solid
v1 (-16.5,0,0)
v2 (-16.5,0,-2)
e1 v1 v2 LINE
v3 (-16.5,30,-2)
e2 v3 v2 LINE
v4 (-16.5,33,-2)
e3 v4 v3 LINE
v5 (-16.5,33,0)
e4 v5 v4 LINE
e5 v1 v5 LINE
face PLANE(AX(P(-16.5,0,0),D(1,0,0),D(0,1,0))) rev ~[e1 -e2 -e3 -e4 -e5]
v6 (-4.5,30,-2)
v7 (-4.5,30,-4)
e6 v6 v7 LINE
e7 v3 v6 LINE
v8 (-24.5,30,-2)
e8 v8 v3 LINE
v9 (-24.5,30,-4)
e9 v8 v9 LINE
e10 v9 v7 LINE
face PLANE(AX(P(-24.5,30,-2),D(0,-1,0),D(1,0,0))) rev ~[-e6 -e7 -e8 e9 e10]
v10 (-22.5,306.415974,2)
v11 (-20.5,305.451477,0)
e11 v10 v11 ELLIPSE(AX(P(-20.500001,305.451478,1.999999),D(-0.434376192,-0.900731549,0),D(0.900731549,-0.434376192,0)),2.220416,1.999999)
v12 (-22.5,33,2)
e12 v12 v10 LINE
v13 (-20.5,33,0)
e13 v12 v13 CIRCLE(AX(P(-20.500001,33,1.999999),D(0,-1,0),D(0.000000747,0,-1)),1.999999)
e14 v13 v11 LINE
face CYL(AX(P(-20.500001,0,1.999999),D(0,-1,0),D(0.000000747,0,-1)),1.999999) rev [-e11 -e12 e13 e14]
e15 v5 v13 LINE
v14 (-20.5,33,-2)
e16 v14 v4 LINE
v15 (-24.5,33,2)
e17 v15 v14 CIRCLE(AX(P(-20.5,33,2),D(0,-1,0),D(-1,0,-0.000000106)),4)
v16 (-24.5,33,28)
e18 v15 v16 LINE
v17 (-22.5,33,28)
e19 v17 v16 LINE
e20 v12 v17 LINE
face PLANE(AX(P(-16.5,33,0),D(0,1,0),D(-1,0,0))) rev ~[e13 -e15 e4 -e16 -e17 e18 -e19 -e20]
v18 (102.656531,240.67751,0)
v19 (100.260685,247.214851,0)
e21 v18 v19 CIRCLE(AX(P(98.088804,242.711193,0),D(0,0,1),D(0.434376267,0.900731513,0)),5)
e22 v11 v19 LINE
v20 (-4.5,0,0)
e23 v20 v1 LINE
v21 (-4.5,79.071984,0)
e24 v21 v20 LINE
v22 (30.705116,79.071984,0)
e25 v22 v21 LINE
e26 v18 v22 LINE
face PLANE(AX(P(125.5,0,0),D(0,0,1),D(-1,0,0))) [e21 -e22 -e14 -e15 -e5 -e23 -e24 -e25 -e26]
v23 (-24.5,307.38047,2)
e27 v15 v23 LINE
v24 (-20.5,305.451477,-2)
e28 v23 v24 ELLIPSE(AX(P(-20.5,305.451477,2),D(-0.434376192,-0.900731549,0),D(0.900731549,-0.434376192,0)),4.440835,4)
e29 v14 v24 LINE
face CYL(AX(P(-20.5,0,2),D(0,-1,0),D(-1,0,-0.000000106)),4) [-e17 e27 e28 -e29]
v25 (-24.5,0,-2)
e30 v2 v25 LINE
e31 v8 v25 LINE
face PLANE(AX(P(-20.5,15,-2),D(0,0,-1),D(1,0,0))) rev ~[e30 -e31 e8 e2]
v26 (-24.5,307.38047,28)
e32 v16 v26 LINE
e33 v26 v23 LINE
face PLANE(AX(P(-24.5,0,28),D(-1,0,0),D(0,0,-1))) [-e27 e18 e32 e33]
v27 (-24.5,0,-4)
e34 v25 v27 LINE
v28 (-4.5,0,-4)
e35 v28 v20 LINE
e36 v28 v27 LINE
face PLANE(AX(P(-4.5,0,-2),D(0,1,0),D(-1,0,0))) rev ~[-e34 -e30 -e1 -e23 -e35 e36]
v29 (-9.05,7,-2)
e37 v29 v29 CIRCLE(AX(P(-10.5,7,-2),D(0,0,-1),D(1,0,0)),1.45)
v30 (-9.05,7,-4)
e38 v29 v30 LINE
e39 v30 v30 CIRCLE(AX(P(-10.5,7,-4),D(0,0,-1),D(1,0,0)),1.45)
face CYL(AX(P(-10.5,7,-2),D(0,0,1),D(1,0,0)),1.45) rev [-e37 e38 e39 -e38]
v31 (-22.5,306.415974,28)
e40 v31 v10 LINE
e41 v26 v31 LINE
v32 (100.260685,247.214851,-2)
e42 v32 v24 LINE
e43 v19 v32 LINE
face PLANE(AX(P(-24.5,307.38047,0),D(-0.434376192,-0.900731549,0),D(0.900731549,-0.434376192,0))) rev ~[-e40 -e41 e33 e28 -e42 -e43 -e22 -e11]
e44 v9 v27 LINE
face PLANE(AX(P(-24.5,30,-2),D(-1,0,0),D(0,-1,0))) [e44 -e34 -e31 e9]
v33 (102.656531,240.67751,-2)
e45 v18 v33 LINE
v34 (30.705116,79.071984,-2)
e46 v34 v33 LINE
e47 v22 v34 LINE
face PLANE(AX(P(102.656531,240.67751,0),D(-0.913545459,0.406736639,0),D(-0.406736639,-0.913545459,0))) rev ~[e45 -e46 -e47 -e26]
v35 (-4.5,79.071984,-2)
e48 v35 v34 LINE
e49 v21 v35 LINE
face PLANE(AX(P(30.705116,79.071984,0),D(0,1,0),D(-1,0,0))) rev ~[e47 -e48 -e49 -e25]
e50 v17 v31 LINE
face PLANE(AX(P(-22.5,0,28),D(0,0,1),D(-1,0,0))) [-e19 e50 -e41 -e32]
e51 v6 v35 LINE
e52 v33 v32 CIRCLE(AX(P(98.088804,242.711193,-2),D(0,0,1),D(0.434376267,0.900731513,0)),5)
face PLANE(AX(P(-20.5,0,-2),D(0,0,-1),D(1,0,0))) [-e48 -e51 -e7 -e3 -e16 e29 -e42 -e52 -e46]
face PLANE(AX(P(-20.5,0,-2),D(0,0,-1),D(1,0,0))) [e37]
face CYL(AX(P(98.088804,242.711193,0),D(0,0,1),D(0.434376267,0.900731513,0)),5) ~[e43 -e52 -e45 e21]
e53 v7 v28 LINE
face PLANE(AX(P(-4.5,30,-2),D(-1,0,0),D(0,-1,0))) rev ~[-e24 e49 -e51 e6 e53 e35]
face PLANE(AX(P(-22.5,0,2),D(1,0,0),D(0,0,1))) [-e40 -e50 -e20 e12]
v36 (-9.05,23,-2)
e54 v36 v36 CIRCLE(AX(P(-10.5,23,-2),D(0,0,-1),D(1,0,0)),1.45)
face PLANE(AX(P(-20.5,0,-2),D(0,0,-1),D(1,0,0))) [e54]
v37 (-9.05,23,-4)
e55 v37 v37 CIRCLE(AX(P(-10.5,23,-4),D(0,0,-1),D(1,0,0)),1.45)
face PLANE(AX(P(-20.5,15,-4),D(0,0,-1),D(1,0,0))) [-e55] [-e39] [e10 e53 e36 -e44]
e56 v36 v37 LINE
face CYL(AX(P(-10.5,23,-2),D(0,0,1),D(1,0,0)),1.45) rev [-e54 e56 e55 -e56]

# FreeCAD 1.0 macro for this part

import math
import FreeCAD as App
import Part
import Sketcher
Q = App.Units.Quantity


def add_polygon(sketch, points):
    """Adds a closed chain of lines whose ends are joined by coincident constraints."""
    first, n = sketch.GeometryCount, len(points)
    for a, b in zip(points, points[1:] + points[:1]):
        sketch.addGeometry(Part.LineSegment(App.Vector(*a, 0), App.Vector(*b, 0)), False)
    for i in range(n):
        sketch.addConstraint(Sketcher.Constraint("Coincident", first + i, 2, first + (i + 1) % n, 1))

doc = App.newDocument("Part")
body = doc.addObject("PartDesign::Body", "Body")

sketch1 = body.newObject("Sketcher::SketchObject", "Sketch")
sketch1.AttachmentSupport = (doc.getObject("XZ_Plane"), [""])
sketch1.MapMode = "FlatFace"
sketch1.addGeometry(Part.LineSegment(App.Vector(-22.5, 2, 0), App.Vector(-22.5, 28, 0)), False)
sketch1.addGeometry(Part.LineSegment(App.Vector(-22.5, 28, 0), App.Vector(-24.5, 28, 0)), False)
sketch1.addGeometry(Part.LineSegment(App.Vector(-24.5, 28, 0), App.Vector(-24.5, 2, 0)), False)
sketch1.addGeometry(Part.ArcOfCircle(Part.Circle(App.Vector(-20.5, 2, 0), App.Vector(0, 0, 1), 4), math.radians(-180), math.radians(-90)), False)
sketch1.addGeometry(Part.LineSegment(App.Vector(-20.5, -2, 0), App.Vector(125.5, -2, 0)), False)
sketch1.addGeometry(Part.LineSegment(App.Vector(125.5, -2, 0), App.Vector(125.5, 0, 0)), False)
sketch1.addGeometry(Part.LineSegment(App.Vector(125.5, 0, 0), App.Vector(-20.5, 0, 0)), False)
sketch1.addGeometry(Part.ArcOfCircle(Part.Circle(App.Vector(-20.5, 2, 0), App.Vector(0, 0, 1), 2), math.radians(180), math.radians(270)), False)
sketch1.addConstraint(Sketcher.Constraint("Coincident", 0, 2, 1, 1))
sketch1.addConstraint(Sketcher.Constraint("Coincident", 1, 2, 2, 1))
sketch1.addConstraint(Sketcher.Constraint("Tangent", 2, 2, 3, 1))
sketch1.addConstraint(Sketcher.Constraint("Tangent", 3, 2, 4, 1))
sketch1.addConstraint(Sketcher.Constraint("Coincident", 4, 2, 5, 1))
sketch1.addConstraint(Sketcher.Constraint("Coincident", 5, 2, 6, 1))
sketch1.addConstraint(Sketcher.Constraint("Tangent", 6, 2, 7, 2))
sketch1.addConstraint(Sketcher.Constraint("Tangent", 7, 1, 0, 1))
sketch1.addConstraint(Sketcher.Constraint("Vertical", 0))
sketch1.addConstraint(Sketcher.Constraint("Horizontal", 1))
sketch1.addConstraint(Sketcher.Constraint("Vertical", 2))
sketch1.addConstraint(Sketcher.Constraint("Horizontal", 4))
sketch1.addConstraint(Sketcher.Constraint("Vertical", 5))
sketch1.addConstraint(Sketcher.Constraint("Horizontal", 6))
sketch1.addConstraint(Sketcher.Constraint("Coincident", 7, 3, 3, 3))
sketch1.addConstraint(Sketcher.Constraint("PointOnObject", 5, 2, -1))
sketch1.addConstraint(Sketcher.Constraint("Radius", 3, 4.0))
sketch1.addConstraint(Sketcher.Constraint("Radius", 7, 1.999999))
sketch1.addConstraint(Sketcher.Constraint("DistanceX", 4, 1, 4, 2, 146.0))
sketch1.addConstraint(Sketcher.Constraint("DistanceY", 0, 1, 0, 2, 26.0))
sketch1.addConstraint(Sketcher.Constraint("DistanceX", 3, 3, -1, 1, 20.5))
pad1 = body.newObject("PartDesign::Pad", "Pad")
pad1.Profile = sketch1
pad1.Length = 400
pad1.Reversed = True

sketch2 = body.newObject("Sketcher::SketchObject", "Sketch001")
sketch2.AttachmentSupport = (doc.getObject("XY_Plane"), [""])
sketch2.MapMode = "FlatFace"
add_polygon(sketch2, [(-56, 410), (-56, -13), (165, -13), (165, 410)])
sketch2.addGeometry(Part.LineSegment(App.Vector(-16, 33, 0), App.Vector(-24, 33, 0)), False)
sketch2.addGeometry(Part.LineSegment(App.Vector(-24, 33, 0), App.Vector(-24, 307, 0)), False)
sketch2.addGeometry(Part.LineSegment(App.Vector(-24, 307, 0), App.Vector(100, 247, 0)), False)
sketch2.addGeometry(Part.ArcOfCircle(Part.Circle(App.Vector(98, 243, 0), App.Vector(0, 0, 1), 5), math.radians(-24), math.radians(64)), False)
sketch2.addGeometry(Part.LineSegment(App.Vector(103, 241, 0), App.Vector(31, 79, 0)), False)
sketch2.addGeometry(Part.LineSegment(App.Vector(31, 79, 0), App.Vector(-4, 79, 0)), False)
sketch2.addGeometry(Part.LineSegment(App.Vector(-4, 79, 0), App.Vector(-4, 0, 0)), False)
sketch2.addGeometry(Part.LineSegment(App.Vector(-4, 0, 0), App.Vector(-16, 0, 0)), False)
sketch2.addGeometry(Part.LineSegment(App.Vector(-16, 0, 0), App.Vector(-16, 33, 0)), False)
sketch2.addConstraint(Sketcher.Constraint("Coincident", 4, 2, 5, 1))
sketch2.addConstraint(Sketcher.Constraint("Coincident", 5, 2, 6, 1))
sketch2.addConstraint(Sketcher.Constraint("Tangent", 6, 2, 7, 2))
sketch2.addConstraint(Sketcher.Constraint("Tangent", 7, 1, 8, 1))
sketch2.addConstraint(Sketcher.Constraint("Coincident", 8, 2, 9, 1))
sketch2.addConstraint(Sketcher.Constraint("Coincident", 9, 2, 10, 1))
sketch2.addConstraint(Sketcher.Constraint("Coincident", 10, 2, 11, 1))
sketch2.addConstraint(Sketcher.Constraint("Coincident", 11, 2, 12, 1))
sketch2.addConstraint(Sketcher.Constraint("Coincident", 12, 2, 4, 1))
sketch2.addConstraint(Sketcher.Constraint("Vertical", 0))
sketch2.addConstraint(Sketcher.Constraint("Horizontal", 1))
sketch2.addConstraint(Sketcher.Constraint("Vertical", 2))
sketch2.addConstraint(Sketcher.Constraint("Horizontal", 3))
sketch2.addConstraint(Sketcher.Constraint("Horizontal", 4))
sketch2.addConstraint(Sketcher.Constraint("Vertical", 5))
sketch2.addConstraint(Sketcher.Constraint("Horizontal", 9))
sketch2.addConstraint(Sketcher.Constraint("Vertical", 10))
sketch2.addConstraint(Sketcher.Constraint("Horizontal", 11))
sketch2.addConstraint(Sketcher.Constraint("Vertical", 12))
sketch2.addConstraint(Sketcher.Constraint("PointOnObject", 10, 2, -1))
sketch2.addConstraint(Sketcher.Constraint("Radius", 7, 5.0))
sketch2.addConstraint(Sketcher.Constraint("DistanceX", 4, 2, 4, 1, 8.0))
sketch2.addConstraint(Sketcher.Constraint("DistanceX", 11, 2, 11, 1, 12.0))
sketch2.addConstraint(Sketcher.Constraint("DistanceY", 12, 1, 12, 2, 33.0))
sketch2.addConstraint(Sketcher.Constraint("Angle", 8, Q("-114 deg")))
sketch2.addConstraint(Sketcher.Constraint("DistanceX", 4, 2, -1, 1, 24.5))
sketch2.addConstraint(Sketcher.Constraint("DistanceY", 0, 2, 0, 1, 423.016819))
sketch2.addConstraint(Sketcher.Constraint("DistanceY", 5, 1, 5, 2, 274.38047))
sketch2.addConstraint(Sketcher.Constraint("Distance", 8, 176.899271))
sketch2.addConstraint(Sketcher.Constraint("DistanceX", 1, 1, 1, 2, 221.745663))
sketch2.addConstraint(Sketcher.Constraint("DistanceX", 9, 2, 9, 1, 35.205116))
sketch2.addConstraint(Sketcher.Constraint("DistanceY", 10, 2, 10, 1, 79.071984))
sketch2.addConstraint(Sketcher.Constraint("DistanceX", 0, 2, 7, 3, 154.46213))
sketch2.addConstraint(Sketcher.Constraint("DistanceY", 0, 2, 7, 3, 255.812959))
pocket1 = body.newObject("PartDesign::Pocket", "Pocket")
pocket1.Profile = sketch2
pocket1.Length = 100
pocket1.Midplane = True

sketch3 = body.newObject("Sketcher::SketchObject", "Sketch002")
sketch3.AttachmentSupport = (doc.getObject("XY_Plane"), [""])
sketch3.MapMode = "FlatFace"
sketch3.AttachmentOffset = App.Placement(App.Vector(0, 0, -2), App.Rotation())
sketch3.addGeometry(Part.Circle(App.Vector(-18.5, 7, 0), App.Vector(0, 0, 1), 1.4), False)
sketch3.addGeometry(Part.Circle(App.Vector(-18.5, 23, 0), App.Vector(0, 0, 1), 1.4), False)
sketch3.addConstraint(Sketcher.Constraint("Equal", 0, 1))
sketch3.addConstraint(Sketcher.Constraint("Vertical", 0, 3, 1, 3))
sketch3.addConstraint(Sketcher.Constraint("Diameter", 0, 2.9))
sketch3.addConstraint(Sketcher.Constraint("DistanceY", -1, 1, 0, 3, 7.0))
sketch3.addConstraint(Sketcher.Constraint("DistanceY", -1, 1, 1, 3, 23.0))
sketch3.addConstraint(Sketcher.Constraint("DistanceX", 0, 3, -1, 1, 18.5))
pocket2 = body.newObject("PartDesign::Pocket", "Pocket001")
pocket2.Profile = sketch3
pocket2.Length = 25
pocket2.Reversed = True

sketch4 = body.newObject("Sketcher::SketchObject", "Sketch003")
sketch4.AttachmentSupport = (doc.getObject("XY_Plane"), [""])
sketch4.MapMode = "FlatFace"
sketch4.AttachmentOffset = App.Placement(App.Vector(0, 0, -2), App.Rotation())
add_polygon(sketch4, [(-24.5, 0), (-24.5, 30), (-4.5, 30), (-4.5, 0)])
sketch4.addGeometry(Part.Circle(App.Vector(-10.5, 23, 0), App.Vector(0, 0, 1), 1.4), False)
sketch4.addGeometry(Part.Circle(App.Vector(-10.5, 7, 0), App.Vector(0, 0, 1), 1.4), False)
sketch4.addConstraint(Sketcher.Constraint("Vertical", 0))
sketch4.addConstraint(Sketcher.Constraint("Horizontal", 1))
sketch4.addConstraint(Sketcher.Constraint("Vertical", 2))
sketch4.addConstraint(Sketcher.Constraint("Horizontal", 3))
sketch4.addConstraint(Sketcher.Constraint("Equal", 4, 5))
sketch4.addConstraint(Sketcher.Constraint("PointOnObject", 2, 2, -1))
sketch4.addConstraint(Sketcher.Constraint("Vertical", 4, 3, 5, 3))
sketch4.addConstraint(Sketcher.Constraint("Diameter", 4, 2.9))
sketch4.addConstraint(Sketcher.Constraint("DistanceX", 1, 1, 1, 2, 20.0))
sketch4.addConstraint(Sketcher.Constraint("DistanceY", 0, 1, 0, 2, 30.0))
sketch4.addConstraint(Sketcher.Constraint("DistanceY", -1, 1, 4, 3, 23.0))
sketch4.addConstraint(Sketcher.Constraint("DistanceY", -1, 1, 5, 3, 7.0))
sketch4.addConstraint(Sketcher.Constraint("DistanceX", 0, 2, 4, 3, 14.0))
sketch4.addConstraint(Sketcher.Constraint("DistanceX", 4, 3, -1, 1, 10.5))
pad2 = body.newObject("PartDesign::Pad", "Pad001")
pad2.Profile = sketch4
pad2.Length = 2
pad2.Reversed = True

doc.recompute()
